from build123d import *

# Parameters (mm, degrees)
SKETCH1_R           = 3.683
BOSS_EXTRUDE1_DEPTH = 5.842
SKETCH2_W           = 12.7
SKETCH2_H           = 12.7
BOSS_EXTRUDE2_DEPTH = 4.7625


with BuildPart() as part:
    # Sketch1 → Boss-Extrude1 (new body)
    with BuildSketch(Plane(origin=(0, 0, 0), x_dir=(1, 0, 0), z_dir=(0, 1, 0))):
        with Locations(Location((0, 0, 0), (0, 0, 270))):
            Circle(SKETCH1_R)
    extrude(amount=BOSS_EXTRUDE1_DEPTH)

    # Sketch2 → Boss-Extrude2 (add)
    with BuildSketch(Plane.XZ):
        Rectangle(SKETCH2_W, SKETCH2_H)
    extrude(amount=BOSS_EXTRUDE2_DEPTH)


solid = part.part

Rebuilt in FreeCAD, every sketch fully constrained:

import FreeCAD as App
import Part
import Sketcher

V = App.Vector
Q = App.Units.Quantity

doc = App.newDocument("Part")
body = doc.addObject("PartDesign::Body", "Body")

# Sketch on XZ plane
sketch1 = body.newObject("Sketcher::SketchObject", "Sketch")
sketch1.AttachmentSupport = (doc.getObject("XZ_Plane"), [""])
sketch1.MapMode = "FlatFace"
sketch1.addGeometry(Part.Circle(V(0, 0, 0), V(0, 0, 1), 3.683), False)
sketch1.addConstraint([
    Sketcher.Constraint("Coincident", 0, 3, -1, 1),
    Sketcher.Constraint("Diameter", 0, Q("0.29 in")),
])
pad1 = body.newObject("PartDesign::Pad", "Pad")
pad1.Profile = sketch1
pad1.Length = Q("0.23 in")
pad1.Reversed = True

# Sketch on XZ plane
sketch2 = body.newObject("Sketcher::SketchObject", "Sketch001")
sketch2.AttachmentSupport = (doc.getObject("XZ_Plane"), [""])
sketch2.MapMode = "FlatFace"
sketch2.addGeometry([
    Part.LineSegment(V(-6.35, 6.35, 0), V(-6.35, -6.35, 0)),
    Part.LineSegment(V(-6.35, -6.35, 0), V(6.35, -6.35, 0)),
    Part.LineSegment(V(6.35, -6.35, 0), V(6.35, 6.35, 0)),
    Part.LineSegment(V(6.35, 6.35, 0), V(-6.35, 6.35, 0)),
], False)
sketch2.addConstraint([
    Sketcher.Constraint("Coincident", 0, 2, 1, 1),
    Sketcher.Constraint("Coincident", 1, 2, 2, 1),
    Sketcher.Constraint("Coincident", 2, 2, 3, 1),
    Sketcher.Constraint("Coincident", 3, 2, 0, 1),
    Sketcher.Constraint("Vertical", 0),
    Sketcher.Constraint("Horizontal", 1),
    Sketcher.Constraint("Vertical", 2),
    Sketcher.Constraint("Horizontal", 3),
    Sketcher.Constraint("Symmetric", 0, 2, 2, 2, -1, 1),
    Sketcher.Constraint("Equal", 3, 0),
    Sketcher.Constraint("DistanceX", 1, 1, 1, 2, Q("0.5 in")),
])
pad2 = body.newObject("PartDesign::Pad", "Pad001")
pad2.Profile = sketch2
pad2.Length = Q("0.1875 in")

doc.recompute()
